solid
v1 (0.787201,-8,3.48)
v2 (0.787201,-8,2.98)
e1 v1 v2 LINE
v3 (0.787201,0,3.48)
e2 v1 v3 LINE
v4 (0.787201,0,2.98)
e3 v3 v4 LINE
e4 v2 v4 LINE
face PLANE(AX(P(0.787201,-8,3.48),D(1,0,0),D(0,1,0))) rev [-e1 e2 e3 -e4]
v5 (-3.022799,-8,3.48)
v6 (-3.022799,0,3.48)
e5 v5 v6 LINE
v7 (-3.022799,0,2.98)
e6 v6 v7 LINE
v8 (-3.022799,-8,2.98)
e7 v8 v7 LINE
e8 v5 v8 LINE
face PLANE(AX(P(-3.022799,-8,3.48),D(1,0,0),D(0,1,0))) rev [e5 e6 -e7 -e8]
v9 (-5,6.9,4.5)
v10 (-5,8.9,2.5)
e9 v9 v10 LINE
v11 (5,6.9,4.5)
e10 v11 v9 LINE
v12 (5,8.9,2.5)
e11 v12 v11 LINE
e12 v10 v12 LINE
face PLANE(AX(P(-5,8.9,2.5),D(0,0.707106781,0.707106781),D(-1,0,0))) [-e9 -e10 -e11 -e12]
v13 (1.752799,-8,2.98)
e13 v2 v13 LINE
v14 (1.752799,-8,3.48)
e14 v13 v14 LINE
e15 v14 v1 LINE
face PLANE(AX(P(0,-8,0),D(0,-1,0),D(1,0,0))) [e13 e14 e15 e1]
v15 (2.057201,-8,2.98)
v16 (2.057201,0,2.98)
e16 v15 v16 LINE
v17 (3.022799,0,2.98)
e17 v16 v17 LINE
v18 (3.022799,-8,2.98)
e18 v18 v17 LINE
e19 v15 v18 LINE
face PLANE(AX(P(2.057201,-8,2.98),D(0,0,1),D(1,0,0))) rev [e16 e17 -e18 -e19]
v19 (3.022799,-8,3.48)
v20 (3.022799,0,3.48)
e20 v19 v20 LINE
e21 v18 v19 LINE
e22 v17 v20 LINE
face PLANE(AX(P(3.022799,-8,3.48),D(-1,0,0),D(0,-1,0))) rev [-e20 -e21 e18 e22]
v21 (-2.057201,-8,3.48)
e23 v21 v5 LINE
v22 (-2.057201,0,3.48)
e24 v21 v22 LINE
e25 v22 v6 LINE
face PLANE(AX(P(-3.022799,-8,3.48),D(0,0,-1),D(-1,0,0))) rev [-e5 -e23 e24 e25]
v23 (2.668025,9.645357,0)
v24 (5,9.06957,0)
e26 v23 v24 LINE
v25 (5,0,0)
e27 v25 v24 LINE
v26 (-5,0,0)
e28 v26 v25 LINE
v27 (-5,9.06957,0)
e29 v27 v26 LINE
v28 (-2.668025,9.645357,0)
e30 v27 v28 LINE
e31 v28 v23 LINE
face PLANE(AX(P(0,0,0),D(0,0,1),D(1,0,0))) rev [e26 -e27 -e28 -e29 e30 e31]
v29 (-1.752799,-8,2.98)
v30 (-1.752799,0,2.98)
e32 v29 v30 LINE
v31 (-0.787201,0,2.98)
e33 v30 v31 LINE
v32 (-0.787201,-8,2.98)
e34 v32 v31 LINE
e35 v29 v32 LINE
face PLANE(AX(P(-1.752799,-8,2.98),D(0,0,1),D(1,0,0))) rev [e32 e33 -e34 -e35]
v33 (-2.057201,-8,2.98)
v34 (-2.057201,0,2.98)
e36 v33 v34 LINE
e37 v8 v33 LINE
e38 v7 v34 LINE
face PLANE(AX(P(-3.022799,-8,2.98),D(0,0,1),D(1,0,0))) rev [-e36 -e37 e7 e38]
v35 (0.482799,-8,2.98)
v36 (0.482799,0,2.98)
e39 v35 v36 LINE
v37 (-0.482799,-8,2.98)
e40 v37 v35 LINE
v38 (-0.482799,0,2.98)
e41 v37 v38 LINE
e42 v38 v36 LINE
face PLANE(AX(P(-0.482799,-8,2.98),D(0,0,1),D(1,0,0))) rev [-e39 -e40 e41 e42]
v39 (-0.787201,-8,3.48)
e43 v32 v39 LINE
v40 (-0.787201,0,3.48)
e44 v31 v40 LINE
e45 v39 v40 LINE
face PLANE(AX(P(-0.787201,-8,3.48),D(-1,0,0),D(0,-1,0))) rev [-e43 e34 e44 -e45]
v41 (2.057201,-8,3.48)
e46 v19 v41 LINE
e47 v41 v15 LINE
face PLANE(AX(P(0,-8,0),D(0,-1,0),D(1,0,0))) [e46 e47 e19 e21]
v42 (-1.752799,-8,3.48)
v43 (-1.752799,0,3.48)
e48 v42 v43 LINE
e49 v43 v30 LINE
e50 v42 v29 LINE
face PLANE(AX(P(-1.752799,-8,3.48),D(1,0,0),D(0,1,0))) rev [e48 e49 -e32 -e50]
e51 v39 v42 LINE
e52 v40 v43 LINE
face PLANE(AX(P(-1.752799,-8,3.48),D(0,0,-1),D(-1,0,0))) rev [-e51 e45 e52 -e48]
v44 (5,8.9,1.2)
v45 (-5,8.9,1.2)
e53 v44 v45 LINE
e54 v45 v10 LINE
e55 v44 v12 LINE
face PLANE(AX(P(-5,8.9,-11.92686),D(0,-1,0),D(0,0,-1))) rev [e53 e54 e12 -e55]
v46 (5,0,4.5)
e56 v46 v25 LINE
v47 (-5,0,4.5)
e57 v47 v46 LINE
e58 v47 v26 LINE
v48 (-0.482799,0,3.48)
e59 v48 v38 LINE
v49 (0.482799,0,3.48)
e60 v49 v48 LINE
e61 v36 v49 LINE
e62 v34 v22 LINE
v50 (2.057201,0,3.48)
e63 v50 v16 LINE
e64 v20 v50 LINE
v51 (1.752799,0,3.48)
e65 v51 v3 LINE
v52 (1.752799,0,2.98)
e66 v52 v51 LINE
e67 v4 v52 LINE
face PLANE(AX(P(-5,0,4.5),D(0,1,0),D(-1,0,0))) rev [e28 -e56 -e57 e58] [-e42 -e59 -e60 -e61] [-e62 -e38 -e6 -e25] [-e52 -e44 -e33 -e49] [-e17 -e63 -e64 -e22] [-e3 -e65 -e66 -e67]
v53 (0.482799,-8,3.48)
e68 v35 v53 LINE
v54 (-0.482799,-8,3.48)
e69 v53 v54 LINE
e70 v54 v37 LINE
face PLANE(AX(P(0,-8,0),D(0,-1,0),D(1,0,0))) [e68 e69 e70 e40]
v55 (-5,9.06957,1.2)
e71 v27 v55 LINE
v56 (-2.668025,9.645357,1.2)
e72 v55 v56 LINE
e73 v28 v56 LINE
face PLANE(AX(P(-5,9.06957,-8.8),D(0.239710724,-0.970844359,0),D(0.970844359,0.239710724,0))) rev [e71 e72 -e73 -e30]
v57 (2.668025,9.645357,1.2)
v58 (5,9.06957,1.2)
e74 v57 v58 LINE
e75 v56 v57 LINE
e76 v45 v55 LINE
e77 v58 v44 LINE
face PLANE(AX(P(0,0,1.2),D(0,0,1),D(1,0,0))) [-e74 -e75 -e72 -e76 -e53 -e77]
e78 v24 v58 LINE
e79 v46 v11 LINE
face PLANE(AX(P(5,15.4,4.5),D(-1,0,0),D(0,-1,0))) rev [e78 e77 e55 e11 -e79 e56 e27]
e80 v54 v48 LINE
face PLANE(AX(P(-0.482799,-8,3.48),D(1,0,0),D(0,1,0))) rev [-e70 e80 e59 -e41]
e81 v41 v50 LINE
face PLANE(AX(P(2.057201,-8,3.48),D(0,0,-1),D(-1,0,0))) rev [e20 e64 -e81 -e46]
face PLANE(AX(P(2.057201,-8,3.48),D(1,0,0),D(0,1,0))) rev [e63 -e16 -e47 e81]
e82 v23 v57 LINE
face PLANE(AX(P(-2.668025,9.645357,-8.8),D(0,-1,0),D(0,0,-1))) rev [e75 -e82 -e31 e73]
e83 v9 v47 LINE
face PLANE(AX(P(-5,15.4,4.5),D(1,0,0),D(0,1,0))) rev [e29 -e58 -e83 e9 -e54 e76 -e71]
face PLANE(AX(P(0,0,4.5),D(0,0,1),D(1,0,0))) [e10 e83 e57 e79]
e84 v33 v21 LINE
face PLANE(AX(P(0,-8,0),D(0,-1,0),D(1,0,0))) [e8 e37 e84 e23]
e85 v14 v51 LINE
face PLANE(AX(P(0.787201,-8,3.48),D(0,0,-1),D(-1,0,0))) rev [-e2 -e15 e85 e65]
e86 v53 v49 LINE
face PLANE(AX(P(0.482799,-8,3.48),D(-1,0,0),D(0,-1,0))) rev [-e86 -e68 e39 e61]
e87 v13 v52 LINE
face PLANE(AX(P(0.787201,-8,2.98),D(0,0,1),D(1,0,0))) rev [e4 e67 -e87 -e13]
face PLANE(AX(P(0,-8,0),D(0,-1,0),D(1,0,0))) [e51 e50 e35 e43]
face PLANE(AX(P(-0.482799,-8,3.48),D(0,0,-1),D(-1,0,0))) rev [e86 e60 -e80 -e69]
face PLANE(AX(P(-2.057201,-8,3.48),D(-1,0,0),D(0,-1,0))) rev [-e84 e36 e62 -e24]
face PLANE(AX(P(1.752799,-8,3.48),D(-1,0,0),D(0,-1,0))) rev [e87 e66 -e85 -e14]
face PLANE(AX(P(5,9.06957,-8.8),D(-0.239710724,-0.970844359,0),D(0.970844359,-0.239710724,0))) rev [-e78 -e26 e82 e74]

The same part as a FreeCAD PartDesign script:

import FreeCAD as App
import Part
import Sketcher
from FreeCAD import Vector
Q = App.Units.Quantity


def edges_at(feature, points):
    """Names of the edges that pass closest to the given points."""
    edges = feature.Shape.Edges
    near = lambda p: min(range(len(edges)), key=lambda i: edges[i].distToShape(Part.Vertex(*p))[0])
    return sorted({f"Edge{near(p) + 1}" for p in points})


def add_polygon(sketch, points):
    """Adds a closed chain of lines whose ends are joined by coincident constraints."""
    first, n = sketch.GeometryCount, len(points)
    for a, b in zip(points, points[1:] + points[:1]):
        sketch.addGeometry(Part.LineSegment(App.Vector(*a, 0), App.Vector(*b, 0)), False)
    for i in range(n):
        sketch.addConstraint(Sketcher.Constraint("Coincident", first + i, 2, first + (i + 1) % n, 1))

doc = App.newDocument("Part")
body = doc.addObject("PartDesign::Body", "Body")

# Sketch on XY plane
sketch1 = doc.addObject("Sketcher::SketchObject", "Sketch")
body.addObject(sketch1)
sketch1.AttachmentSupport = (doc.XY_Plane, [""])
sketch1.MapMode = "FlatFace"
add_polygon(sketch1, [(-5, 15.4), (-5, 0), (5, 0), (5, 15.4)])  # lines 0-3
sketch1.addConstraint([
    Sketcher.Constraint("Vertical", 0),
    Sketcher.Constraint("Horizontal", 1),
    Sketcher.Constraint("Vertical", 2),
    Sketcher.Constraint("Horizontal", 3),
    Sketcher.Constraint("Symmetric", 0, 2, 1, 2, -1, 1),
    Sketcher.Constraint("DistanceX", 1, 1, 1, 2, Q("10 mm")),
    Sketcher.Constraint("DistanceY", 0, 2, 0, 1, Q("15.4 mm")),
])
pad1 = doc.addObject("PartDesign::Pad", "Pad")
body.addObject(pad1)
pad1.Profile = sketch1
pad1.Length = 4.5

# Sketch on XY plane
sketch2 = doc.addObject("Sketcher::SketchObject", "Sketch001")
body.addObject(sketch2)
sketch2.AttachmentSupport = (doc.XY_Plane, [""])
sketch2.MapMode = "FlatFace"
sketch2.AttachmentOffset = App.Placement(Vector(0, 0, 4.5), App.Rotation())
add_polygon(sketch2, [(-5, 15.4), (-5, 8.9), (5, 8.9), (5, 15.4)])  # lines 0-3
sketch2.addConstraint([
    Sketcher.Constraint("Vertical", 0),
    Sketcher.Constraint("Horizontal", 1),
    Sketcher.Constraint("Vertical", 2),
    Sketcher.Constraint("Horizontal", 3),
    Sketcher.Constraint("DistanceX", 1, 1, 1, 2, Q("10 mm")),
    Sketcher.Constraint("DistanceY", 0, 2, 0, 1, Q("6.5 mm")),
    Sketcher.Constraint("DistanceX", 0, 2, -1, 1, Q("5 mm")),
    Sketcher.Constraint("DistanceY", -1, 1, 0, 2, Q("8.9 mm")),
])
pocket1 = doc.addObject("PartDesign::Pocket", "Pocket")
body.addObject(pocket1)
pocket1.Profile = sketch2
pocket1.Length = 3.3
doc.recompute()

chamfer = doc.addObject("PartDesign::Chamfer", "Chamfer")
body.addObject(chamfer)
chamfer.Base = (pocket1, edges_at(pocket1, [(0, 8.9, 4.5)]))
chamfer.Size = 2

# Sketch on XY plane
sketch3 = doc.addObject("Sketcher::SketchObject", "Sketch002")
body.addObject(sketch3)
sketch3.AttachmentSupport = (doc.XY_Plane, [""])
sketch3.MapMode = "FlatFace"
sketch3.AttachmentOffset = App.Placement(Vector(0, 0, 1.2), App.Rotation())
add_polygon(sketch3, [(-5, 9.06957), (-2.668025, 9.645357), (2.668025, 9.645357), (5, 9.06957), (5, 15.4), (-5, 15.4)])  # lines 0-5
sketch3.addConstraint([
    Sketcher.Constraint("Horizontal", 1),
    Sketcher.Constraint("Vertical", 3),
    Sketcher.Constraint("Horizontal", 4),
    Sketcher.Constraint("Vertical", 5),
    Sketcher.Constraint("Symmetric", 2, 2, 5, 2, -2),
    Sketcher.Constraint("Equal", 0, 2),
    Sketcher.Constraint("DistanceX", 4, 2, 4, 1, Q("10 mm")),
    Sketcher.Constraint("DistanceY", -1, 1, 3, 2, Q("15.4 mm")),
    Sketcher.Constraint("DistanceX", 1, 1, 1, 2, Q("5.33605 mm")),
    Sketcher.Constraint("DistanceY", 3, 1, 3, 2, Q("6.33043 mm")),
    Sketcher.Constraint("Distance", 0, Q("2.402007 mm")),
])
pocket2 = doc.addObject("PartDesign::Pocket", "Pocket001")
body.addObject(pocket2)
pocket2.Profile = sketch3
pocket2.Length = 10

# Sketch on XZ plane
sketch4 = doc.addObject("Sketcher::SketchObject", "Sketch003")
body.addObject(sketch4)
sketch4.AttachmentSupport = (doc.XZ_Plane, [""])
sketch4.MapMode = "FlatFace"
add_polygon(sketch4, [(0.787201, 3.48), (0.787201, 2.98), (1.752799, 2.98), (1.752799, 3.48)])  # lines 0-3
add_polygon(sketch4, [(-0.482799, 3.48), (-0.482799, 2.98), (0.482799, 2.98), (0.482799, 3.48)])  # lines 4-7
add_polygon(sketch4, [(-1.752799, 3.48), (-1.752799, 2.98), (-0.787201, 2.98), (-0.787201, 3.48)])  # lines 8-11
add_polygon(sketch4, [(-3.022799, 3.48), (-3.022799, 2.98), (-2.057201, 2.98), (-2.057201, 3.48)])  # lines 12-15
add_polygon(sketch4, [(2.057201, 3.48), (2.057201, 2.98), (3.022799, 2.98), (3.022799, 3.48)])  # lines 16-19
sketch4.addConstraint([
    Sketcher.Constraint("Vertical", 0),
    Sketcher.Constraint("Horizontal", 1),
    Sketcher.Constraint("Vertical", 2),
    Sketcher.Constraint("Horizontal", 3),
    Sketcher.Constraint("Vertical", 4),
    Sketcher.Constraint("Horizontal", 5),
    Sketcher.Constraint("Vertical", 6),
    Sketcher.Constraint("Horizontal", 7),
    Sketcher.Constraint("Vertical", 8),
    Sketcher.Constraint("Horizontal", 9),
    Sketcher.Constraint("Vertical", 10),
    Sketcher.Constraint("Horizontal", 11),
    Sketcher.Constraint("Vertical", 12),
    Sketcher.Constraint("Horizontal", 13),
    Sketcher.Constraint("Vertical", 14),
    Sketcher.Constraint("Horizontal", 15),
    Sketcher.Constraint("Vertical", 16),
    Sketcher.Constraint("Horizontal", 17),
    Sketcher.Constraint("Vertical", 18),
    Sketcher.Constraint("Horizontal", 19),
    Sketcher.Constraint("Symmetric", 1, 2, 8, 2, -2),
    Sketcher.Constraint("Symmetric", 3, 2, 10, 2, -2),
    Sketcher.Constraint("Symmetric", 13, 2, 16, 2, -2),
    Sketcher.Constraint("Symmetric", 15, 2, 18, 2, -2),
    Sketcher.Constraint("Horizontal", 1, 2, 4, 2),
    Sketcher.Constraint("Horizontal", 3, 2, 6, 2),
    Sketcher.Constraint("Horizontal", 9, 2, 12, 2),
    Sketcher.Constraint("Horizontal", 11, 2, 14, 2),
    Sketcher.Constraint("Equal", 3, 5),
    Sketcher.Constraint("Equal", 11, 13),
    Sketcher.Constraint("DistanceY", 0, 2, 0, 1, Q("0.5 mm")),
    Sketcher.Constraint("DistanceY", -1, 1, 0, 2, Q("2.98 mm")),
    Sketcher.Constraint("DistanceX", 4, 2, 0, 2, Q("1.27 mm")),
    Sketcher.Constraint("DistanceX", 8, 2, 4, 2, Q("1.27 mm")),
    Sketcher.Constraint("DistanceX", 12, 2, 8, 2, Q("1.27 mm")),
    Sketcher.Constraint("DistanceX", -1, 1, 0, 2, Q("0.787201 mm")),
])
pad2 = doc.addObject("PartDesign::Pad", "Pad001")
body.addObject(pad2)
pad2.Profile = sketch4
pad2.Length = 8

doc.recompute()
